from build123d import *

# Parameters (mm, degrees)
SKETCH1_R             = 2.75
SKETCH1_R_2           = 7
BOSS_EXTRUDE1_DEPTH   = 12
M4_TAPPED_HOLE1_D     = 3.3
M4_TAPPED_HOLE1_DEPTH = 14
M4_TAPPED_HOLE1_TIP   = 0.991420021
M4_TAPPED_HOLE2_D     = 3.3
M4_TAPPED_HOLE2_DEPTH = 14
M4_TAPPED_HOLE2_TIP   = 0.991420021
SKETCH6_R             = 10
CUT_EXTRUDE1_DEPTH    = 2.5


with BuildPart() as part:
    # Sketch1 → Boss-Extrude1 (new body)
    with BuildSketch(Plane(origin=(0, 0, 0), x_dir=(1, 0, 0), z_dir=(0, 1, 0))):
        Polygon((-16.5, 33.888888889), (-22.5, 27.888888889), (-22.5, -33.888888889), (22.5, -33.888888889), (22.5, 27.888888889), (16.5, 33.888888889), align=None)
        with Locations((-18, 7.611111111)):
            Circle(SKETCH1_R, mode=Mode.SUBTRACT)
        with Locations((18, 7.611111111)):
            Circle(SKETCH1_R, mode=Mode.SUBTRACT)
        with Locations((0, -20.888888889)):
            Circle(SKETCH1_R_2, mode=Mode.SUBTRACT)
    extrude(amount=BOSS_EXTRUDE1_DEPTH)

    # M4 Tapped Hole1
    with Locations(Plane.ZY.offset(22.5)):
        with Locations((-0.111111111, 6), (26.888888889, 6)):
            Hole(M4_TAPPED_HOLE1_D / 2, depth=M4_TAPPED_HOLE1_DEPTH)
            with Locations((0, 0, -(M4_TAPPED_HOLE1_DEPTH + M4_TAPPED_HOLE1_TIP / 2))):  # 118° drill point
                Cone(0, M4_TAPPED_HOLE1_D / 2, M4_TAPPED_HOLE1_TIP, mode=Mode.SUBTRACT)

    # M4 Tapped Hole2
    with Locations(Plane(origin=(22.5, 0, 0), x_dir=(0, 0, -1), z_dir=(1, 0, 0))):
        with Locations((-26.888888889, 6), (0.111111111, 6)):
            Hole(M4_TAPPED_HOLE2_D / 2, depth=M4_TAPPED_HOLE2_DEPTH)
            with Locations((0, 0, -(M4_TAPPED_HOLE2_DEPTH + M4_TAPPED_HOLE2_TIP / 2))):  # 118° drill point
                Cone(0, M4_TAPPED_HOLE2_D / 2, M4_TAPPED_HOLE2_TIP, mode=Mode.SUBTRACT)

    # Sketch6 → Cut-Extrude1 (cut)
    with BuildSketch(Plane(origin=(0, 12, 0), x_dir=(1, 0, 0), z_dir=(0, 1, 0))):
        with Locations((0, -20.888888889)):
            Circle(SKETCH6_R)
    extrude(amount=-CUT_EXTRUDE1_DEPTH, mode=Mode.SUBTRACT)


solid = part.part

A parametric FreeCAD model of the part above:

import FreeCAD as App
import Part
import Sketcher
Q = App.Units.Quantity

doc = App.newDocument("Part")
body = doc.addObject("PartDesign::Body", "Body")

# Sketch on XZ plane
sketch1 = body.newObject("Sketcher::SketchObject", "Sketch")
sketch1.AttachmentSupport = (doc.getObject("XZ_Plane"), [""])
sketch1.MapMode = "FlatFace"
sketch1.addGeometry([
    Part.LineSegment(App.Vector(-16.5, -33.888889, 0), App.Vector(-22.5, -27.888889, 0)),  # 0
    Part.LineSegment(App.Vector(-22.5, -27.888889, 0), App.Vector(-22.5, 33.888889, 0)),  # 1
    Part.LineSegment(App.Vector(-22.5, 33.888889, 0), App.Vector(22.5, 33.888889, 0)),  # 2
    Part.LineSegment(App.Vector(22.5, 33.888889, 0), App.Vector(22.5, -27.888889, 0)),  # 3
    Part.LineSegment(App.Vector(22.5, -27.888889, 0), App.Vector(16.5, -33.888889, 0)),  # 4
    Part.LineSegment(App.Vector(16.5, -33.888889, 0), App.Vector(-16.5, -33.888889, 0)),  # 5
    Part.Circle(App.Vector(0, 20.888889, 0), App.Vector(0, 0, 1), 7),  # 6
    Part.Circle(App.Vector(-18, -7.611111, 0), App.Vector(0, 0, 1), 2.75),  # 7
    Part.Circle(App.Vector(18, -7.611111, 0), App.Vector(0, 0, 1), 2.75),  # 8
], False)
sketch1.addConstraint([
    Sketcher.Constraint("Coincident", 0, 2, 1, 1),
    Sketcher.Constraint("Coincident", 1, 2, 2, 1),
    Sketcher.Constraint("Coincident", 2, 2, 3, 1),
    Sketcher.Constraint("Coincident", 3, 2, 4, 1),
    Sketcher.Constraint("Coincident", 4, 2, 5, 1),
    Sketcher.Constraint("Coincident", 5, 2, 0, 1),
    Sketcher.Constraint("Vertical", 1),
    Sketcher.Constraint("Horizontal", 2),
    Sketcher.Constraint("Vertical", 3),
    Sketcher.Constraint("Horizontal", 5),
    Sketcher.Constraint("Equal", 7, 8),
    Sketcher.Constraint("Symmetric", 7, 3, 8, 3, -2),
    Sketcher.Constraint("Symmetric", 0, 2, 3, 2, -2),
    Sketcher.Constraint("PointOnObject", 6, 3, -2),
    Sketcher.Constraint("Perpendicular", 0, 4),
    Sketcher.Constraint("Equal", 0, 4),
    Sketcher.Constraint("Diameter", 6, Q("14 mm")),
    Sketcher.Constraint("Diameter", 7, Q("5.5 mm")),
    Sketcher.Constraint("DistanceX", 2, 1, 2, 2, Q("45 mm")),
    Sketcher.Constraint("DistanceX", 5, 2, 5, 1, Q("33 mm")),
    Sketcher.Constraint("DistanceX", 7, 3, -1, 1, Q("18 mm")),
    Sketcher.Constraint("DistanceY", 6, 3, 1, 2, Q("13 mm")),
    Sketcher.Constraint("DistanceY", 7, 3, 6, 3, Q("28.5 mm")),
    Sketcher.Constraint("DistanceY", 1, 1, 1, 2, Q("61.777778 mm")),
    Sketcher.Constraint("DistanceY", -1, 1, 6, 3, Q("20.888889 mm")),
])
pad1 = body.newObject("PartDesign::Pad", "Pad")
pad1.Profile = sketch1
pad1.Length = 12
pad1.Reversed = True

# Sketch on YZ plane
sketch2 = body.newObject("Sketcher::SketchObject", "Sketch001")
sketch2.AttachmentSupport = (doc.getObject("YZ_Plane"), [""])
sketch2.MapMode = "FlatFace"
sketch2.AttachmentOffset = App.Placement(App.Vector(0, 0, -22.5), App.Rotation())
sketch2.addGeometry([
    Part.Circle(App.Vector(6, -0.111111, 0), App.Vector(0, 0, 1), 1.65),
    Part.Circle(App.Vector(6, 26.888889, 0), App.Vector(0, 0, 1), 1.65),
], False)
sketch2.addConstraint([
    Sketcher.Constraint("Equal", 0, 1),
    Sketcher.Constraint("Vertical", 0, 3, 1, 3),
    Sketcher.Constraint("Diameter", 0, Q("3.3 mm")),
    Sketcher.Constraint("DistanceX", -1, 1, 0, 3, Q("6 mm")),
    Sketcher.Constraint("DistanceY", 0, 3, 1, 3, Q("27 mm")),
    Sketcher.Constraint("DistanceY", 0, 3, -1, 1, Q("0.111111 mm")),
])
doc.recompute()
hole = body.newObject("PartDesign::Hole", "Hole")
hole.Profile = sketch2
hole.ThreadType = "None"
hole.Diameter = 3.3
hole.DepthType = "Dimension"
hole.Depth = 14
hole.DrillPoint = "Angled"
hole.DrillPointAngle = 118
hole.Reversed = True

# Sketch on YZ plane
sketch3 = body.newObject("Sketcher::SketchObject", "Sketch002")
sketch3.AttachmentSupport = (doc.getObject("YZ_Plane"), [""])
sketch3.MapMode = "FlatFace"
sketch3.AttachmentOffset = App.Placement(App.Vector(0, 0, 22.5), App.Rotation())
sketch3.addGeometry([
    Part.Circle(App.Vector(6, 26.888889, 0), App.Vector(0, 0, 1), 1.65),
    Part.Circle(App.Vector(6, -0.111111, 0), App.Vector(0, 0, 1), 1.65),
], False)
sketch3.addConstraint([
    Sketcher.Constraint("Equal", 0, 1),
    Sketcher.Constraint("Vertical", 0, 3, 1, 3),
    Sketcher.Constraint("Diameter", 0, Q("3.3 mm")),
    Sketcher.Constraint("DistanceX", -1, 1, 0, 3, Q("6 mm")),
    Sketcher.Constraint("DistanceY", 1, 3, 0, 3, Q("27 mm")),
    Sketcher.Constraint("DistanceY", -1, 1, 0, 3, Q("26.888889 mm")),
])
doc.recompute()
hole2 = body.newObject("PartDesign::Hole", "Hole001")
hole2.Profile = sketch3
hole2.ThreadType = "None"
hole2.Diameter = 3.3
hole2.DepthType = "Dimension"
hole2.Depth = 14
hole2.DrillPoint = "Angled"
hole2.DrillPointAngle = 118

# Sketch on XZ plane
sketch4 = body.newObject("Sketcher::SketchObject", "Sketch003")
sketch4.AttachmentSupport = (doc.getObject("XZ_Plane"), [""])
sketch4.MapMode = "FlatFace"
sketch4.AttachmentOffset = App.Placement(App.Vector(0, 0, -12), App.Rotation())
sketch4.addGeometry(Part.Circle(App.Vector(0, 20.888889, 0), App.Vector(0, 0, 1), 10), False)
sketch4.addConstraint([
    Sketcher.Constraint("PointOnObject", 0, 3, -2),
    Sketcher.Constraint("Diameter", 0, Q("20 mm")),
    Sketcher.Constraint("DistanceY", -1, 1, 0, 3, Q("20.888889 mm")),
])
pocket1 = body.newObject("PartDesign::Pocket", "Pocket")
pocket1.Profile = sketch4
pocket1.Length = 2.5
pocket1.Reversed = True

doc.recompute()
